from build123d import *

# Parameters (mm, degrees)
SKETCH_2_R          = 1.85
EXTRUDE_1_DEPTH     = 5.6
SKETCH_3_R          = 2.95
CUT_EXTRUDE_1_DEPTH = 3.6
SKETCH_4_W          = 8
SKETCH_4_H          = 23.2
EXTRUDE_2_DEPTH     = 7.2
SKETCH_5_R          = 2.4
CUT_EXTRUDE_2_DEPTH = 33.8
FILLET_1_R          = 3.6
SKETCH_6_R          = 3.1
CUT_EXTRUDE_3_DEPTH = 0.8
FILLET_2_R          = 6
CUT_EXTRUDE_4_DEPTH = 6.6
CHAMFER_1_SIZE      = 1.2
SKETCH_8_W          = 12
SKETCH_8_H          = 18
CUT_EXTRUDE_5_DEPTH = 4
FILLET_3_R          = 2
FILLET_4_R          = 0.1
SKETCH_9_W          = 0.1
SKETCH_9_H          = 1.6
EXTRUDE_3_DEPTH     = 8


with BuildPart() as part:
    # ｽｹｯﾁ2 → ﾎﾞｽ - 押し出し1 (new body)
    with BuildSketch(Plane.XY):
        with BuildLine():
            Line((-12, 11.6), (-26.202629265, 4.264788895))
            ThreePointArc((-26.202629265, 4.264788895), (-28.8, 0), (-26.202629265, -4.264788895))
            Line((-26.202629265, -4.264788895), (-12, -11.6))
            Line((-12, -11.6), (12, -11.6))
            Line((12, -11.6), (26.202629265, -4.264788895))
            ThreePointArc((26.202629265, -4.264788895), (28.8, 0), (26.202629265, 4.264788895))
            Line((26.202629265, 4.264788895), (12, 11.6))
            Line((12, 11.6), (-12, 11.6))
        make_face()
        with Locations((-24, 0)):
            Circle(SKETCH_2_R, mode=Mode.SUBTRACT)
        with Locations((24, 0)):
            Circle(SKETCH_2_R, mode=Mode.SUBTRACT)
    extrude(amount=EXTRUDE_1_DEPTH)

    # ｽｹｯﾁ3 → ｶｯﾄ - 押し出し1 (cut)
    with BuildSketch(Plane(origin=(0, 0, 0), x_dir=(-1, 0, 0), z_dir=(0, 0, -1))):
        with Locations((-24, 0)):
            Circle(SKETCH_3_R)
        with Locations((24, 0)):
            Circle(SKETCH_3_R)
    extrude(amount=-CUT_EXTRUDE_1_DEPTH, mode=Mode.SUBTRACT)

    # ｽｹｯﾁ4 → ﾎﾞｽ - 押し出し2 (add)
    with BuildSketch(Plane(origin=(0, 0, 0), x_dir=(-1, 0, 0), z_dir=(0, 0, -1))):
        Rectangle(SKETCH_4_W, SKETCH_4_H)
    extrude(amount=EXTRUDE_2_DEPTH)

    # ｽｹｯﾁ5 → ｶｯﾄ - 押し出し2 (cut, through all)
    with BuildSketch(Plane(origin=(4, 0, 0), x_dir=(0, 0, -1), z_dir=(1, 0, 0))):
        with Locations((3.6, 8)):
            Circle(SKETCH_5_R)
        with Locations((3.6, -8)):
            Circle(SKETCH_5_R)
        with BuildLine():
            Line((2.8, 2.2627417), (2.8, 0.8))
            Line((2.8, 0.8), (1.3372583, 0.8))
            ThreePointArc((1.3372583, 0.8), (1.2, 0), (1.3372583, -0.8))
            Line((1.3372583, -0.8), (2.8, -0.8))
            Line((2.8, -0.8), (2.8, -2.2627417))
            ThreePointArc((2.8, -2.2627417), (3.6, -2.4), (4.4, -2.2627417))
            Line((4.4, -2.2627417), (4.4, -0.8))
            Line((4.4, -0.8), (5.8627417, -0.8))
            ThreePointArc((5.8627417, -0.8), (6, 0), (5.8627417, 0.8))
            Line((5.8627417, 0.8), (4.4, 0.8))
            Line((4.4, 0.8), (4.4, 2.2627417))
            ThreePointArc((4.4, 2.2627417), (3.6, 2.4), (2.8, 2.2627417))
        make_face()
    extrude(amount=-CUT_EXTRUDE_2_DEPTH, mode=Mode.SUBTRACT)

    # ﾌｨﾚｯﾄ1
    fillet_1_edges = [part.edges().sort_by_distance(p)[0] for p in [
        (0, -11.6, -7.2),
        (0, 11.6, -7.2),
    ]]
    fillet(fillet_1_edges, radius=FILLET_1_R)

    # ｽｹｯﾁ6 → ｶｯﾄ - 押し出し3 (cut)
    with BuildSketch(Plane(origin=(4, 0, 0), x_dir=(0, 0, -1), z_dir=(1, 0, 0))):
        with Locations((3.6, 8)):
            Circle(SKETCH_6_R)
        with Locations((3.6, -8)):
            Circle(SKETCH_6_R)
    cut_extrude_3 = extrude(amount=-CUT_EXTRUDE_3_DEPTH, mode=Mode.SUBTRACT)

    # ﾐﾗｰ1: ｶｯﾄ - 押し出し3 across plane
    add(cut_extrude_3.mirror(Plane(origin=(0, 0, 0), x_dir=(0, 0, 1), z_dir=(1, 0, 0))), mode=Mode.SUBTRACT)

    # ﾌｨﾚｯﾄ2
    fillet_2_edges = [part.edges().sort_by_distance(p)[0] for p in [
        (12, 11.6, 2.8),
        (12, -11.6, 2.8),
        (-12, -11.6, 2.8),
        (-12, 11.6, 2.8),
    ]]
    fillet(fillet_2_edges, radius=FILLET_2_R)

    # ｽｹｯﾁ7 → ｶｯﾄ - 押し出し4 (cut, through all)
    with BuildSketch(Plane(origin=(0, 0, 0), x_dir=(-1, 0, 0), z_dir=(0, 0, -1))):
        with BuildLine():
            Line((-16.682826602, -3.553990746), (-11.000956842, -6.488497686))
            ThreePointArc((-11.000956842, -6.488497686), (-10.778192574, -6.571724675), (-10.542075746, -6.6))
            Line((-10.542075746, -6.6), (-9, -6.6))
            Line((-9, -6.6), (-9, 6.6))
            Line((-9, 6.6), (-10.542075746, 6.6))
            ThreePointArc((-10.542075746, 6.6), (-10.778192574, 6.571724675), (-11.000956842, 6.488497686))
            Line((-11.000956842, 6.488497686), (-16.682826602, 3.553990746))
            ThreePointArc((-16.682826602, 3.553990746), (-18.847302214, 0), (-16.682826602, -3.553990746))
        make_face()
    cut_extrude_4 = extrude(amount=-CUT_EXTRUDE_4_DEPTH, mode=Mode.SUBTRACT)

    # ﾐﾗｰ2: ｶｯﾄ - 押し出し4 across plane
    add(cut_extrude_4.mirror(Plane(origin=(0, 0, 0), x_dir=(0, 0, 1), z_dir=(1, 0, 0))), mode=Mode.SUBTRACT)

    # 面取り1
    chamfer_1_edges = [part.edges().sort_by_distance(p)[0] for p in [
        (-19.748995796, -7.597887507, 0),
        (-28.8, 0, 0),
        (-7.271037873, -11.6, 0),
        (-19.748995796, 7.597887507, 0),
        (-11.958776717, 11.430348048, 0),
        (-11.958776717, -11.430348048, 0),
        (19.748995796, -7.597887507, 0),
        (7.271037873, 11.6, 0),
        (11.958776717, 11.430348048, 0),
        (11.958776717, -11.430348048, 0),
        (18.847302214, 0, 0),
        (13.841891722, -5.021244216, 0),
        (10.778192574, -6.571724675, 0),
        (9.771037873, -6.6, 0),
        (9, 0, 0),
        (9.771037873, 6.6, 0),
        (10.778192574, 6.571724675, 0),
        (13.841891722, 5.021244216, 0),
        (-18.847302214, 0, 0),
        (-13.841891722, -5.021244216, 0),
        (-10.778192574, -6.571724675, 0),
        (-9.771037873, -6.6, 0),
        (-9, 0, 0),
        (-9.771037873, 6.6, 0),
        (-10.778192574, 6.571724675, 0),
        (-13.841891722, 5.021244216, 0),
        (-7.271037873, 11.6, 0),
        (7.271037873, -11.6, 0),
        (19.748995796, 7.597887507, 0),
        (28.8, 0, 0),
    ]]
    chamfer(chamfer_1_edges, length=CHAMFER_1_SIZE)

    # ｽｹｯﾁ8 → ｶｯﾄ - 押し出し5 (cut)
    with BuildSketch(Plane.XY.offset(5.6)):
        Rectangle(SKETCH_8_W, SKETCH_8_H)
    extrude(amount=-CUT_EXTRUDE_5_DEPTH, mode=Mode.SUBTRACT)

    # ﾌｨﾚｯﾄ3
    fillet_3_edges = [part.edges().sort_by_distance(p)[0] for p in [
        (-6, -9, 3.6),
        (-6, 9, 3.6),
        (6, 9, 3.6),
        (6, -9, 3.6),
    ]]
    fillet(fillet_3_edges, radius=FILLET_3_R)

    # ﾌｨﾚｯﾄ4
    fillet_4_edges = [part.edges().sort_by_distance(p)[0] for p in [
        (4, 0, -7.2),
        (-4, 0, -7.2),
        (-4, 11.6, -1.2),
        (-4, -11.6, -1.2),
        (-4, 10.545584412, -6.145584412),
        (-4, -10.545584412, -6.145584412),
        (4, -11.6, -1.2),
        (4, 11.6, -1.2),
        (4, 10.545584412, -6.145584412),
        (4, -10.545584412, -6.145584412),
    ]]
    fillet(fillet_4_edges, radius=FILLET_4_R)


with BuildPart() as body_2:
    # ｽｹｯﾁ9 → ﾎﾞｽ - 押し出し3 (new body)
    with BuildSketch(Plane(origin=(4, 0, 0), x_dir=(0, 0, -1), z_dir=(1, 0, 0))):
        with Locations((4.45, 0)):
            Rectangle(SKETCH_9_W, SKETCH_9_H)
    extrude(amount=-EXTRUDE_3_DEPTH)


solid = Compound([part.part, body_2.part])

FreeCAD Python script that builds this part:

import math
import FreeCAD as App
import Part
import Sketcher
Q = App.Units.Quantity


def edges_at(feature, points):
    """Names of the edges that pass closest to the given points."""
    edges = feature.Shape.Edges
    near = lambda p: min(range(len(edges)), key=lambda i: edges[i].distToShape(Part.Vertex(*p))[0])
    return sorted({f"Edge{near(p) + 1}" for p in points})

doc = App.newDocument("Part")
body = doc.addObject("PartDesign::Body", "Body")

sketch1 = body.newObject("Sketcher::SketchObject", "Sketch")
sketch1.AttachmentSupport = (doc.getObject("XY_Plane"), [""])
sketch1.MapMode = "FlatFace"
sketch1.addGeometry([
    Part.LineSegment(App.Vector(-12, 11.6, 0), App.Vector(-26.2, 4.3, 0)),
    Part.ArcOfCircle(Part.Circle(App.Vector(-24, 0, 0), App.Vector(0, 0, 1), 4.8), math.radians(117), math.radians(243)),
    Part.LineSegment(App.Vector(-26.2, -4.3, 0), App.Vector(-12, -11.6, 0)),
    Part.LineSegment(App.Vector(-12, -11.6, 0), App.Vector(12, -11.6, 0)),
    Part.LineSegment(App.Vector(12, -11.6, 0), App.Vector(26.2, -4.3, 0)),
    Part.ArcOfCircle(Part.Circle(App.Vector(24, 0, 0), App.Vector(0, 0, 1), 4.8), math.radians(-63), math.radians(63)),
    Part.LineSegment(App.Vector(26.2, 4.3, 0), App.Vector(12, 11.6, 0)),
    Part.LineSegment(App.Vector(12, 11.6, 0), App.Vector(-12, 11.6, 0)),
    Part.Circle(App.Vector(-24, 0, 0), App.Vector(0, 0, 1), 1.9),
    Part.Circle(App.Vector(24, 0, 0), App.Vector(0, 0, 1), 1.9),
], False)
sketch1.addConstraint([
    Sketcher.Constraint("Tangent", 0, 2, 1, 1),
    Sketcher.Constraint("Tangent", 1, 2, 2, 1),
    Sketcher.Constraint("Coincident", 2, 2, 3, 1),
    Sketcher.Constraint("Coincident", 3, 2, 4, 1),
    Sketcher.Constraint("Tangent", 4, 2, 5, 1),
    Sketcher.Constraint("Tangent", 5, 2, 6, 1),
    Sketcher.Constraint("Coincident", 6, 2, 7, 1),
    Sketcher.Constraint("Coincident", 7, 2, 0, 1),
    Sketcher.Constraint("Horizontal", 3),
    Sketcher.Constraint("Horizontal", 7),
    Sketcher.Constraint("Coincident", 8, 3, 1, 3),
    Sketcher.Constraint("Coincident", 9, 3, 5, 3),
    Sketcher.Constraint("Equal", 1, 5),
    Sketcher.Constraint("Equal", 8, 9),
    Sketcher.Constraint("Symmetric", 1, 3, 5, 3, -1, 1),
    Sketcher.Constraint("Symmetric", 2, 2, 6, 2, -1, 1),
    Sketcher.Constraint("Symmetric", 1, 2, 4, 2, -2),
    Sketcher.Constraint("Parallel", 0, 4),
    Sketcher.Constraint("Diameter", 8, Q("3.7 mm")),
    Sketcher.Constraint("Radius", 1, Q("4.8 mm")),
    Sketcher.Constraint("DistanceX", 3, 1, 3, 2, Q("24 mm")),
    Sketcher.Constraint("DistanceX", 1, 3, -1, 1, Q("24 mm")),
    Sketcher.Constraint("DistanceY", 2, 2, -1, 1, Q("11.6 mm")),
])
pad1 = body.newObject("PartDesign::Pad", "Pad")
pad1.Profile = sketch1
pad1.Length = 5.6

sketch2 = body.newObject("Sketcher::SketchObject", "Sketch001")
sketch2.AttachmentSupport = (doc.getObject("XY_Plane"), [""])
sketch2.MapMode = "FlatFace"
sketch2.addGeometry([
    Part.Circle(App.Vector(24, 0, 0), App.Vector(0, 0, 1), 3),
    Part.Circle(App.Vector(-24, 0, 0), App.Vector(0, 0, 1), 3),
], False)
sketch2.addConstraint([
    Sketcher.Constraint("Equal", 0, 1),
    Sketcher.Constraint("Symmetric", 0, 3, 1, 3, -1, 1),
    Sketcher.Constraint("PointOnObject", 0, 3, -1),
    Sketcher.Constraint("Diameter", 0, Q("5.9 mm")),
    Sketcher.Constraint("DistanceX", -1, 1, 0, 3, Q("24 mm")),
])
pocket1 = body.newObject("PartDesign::Pocket", "Pocket")
pocket1.Profile = sketch2
pocket1.Length = 3.6
pocket1.Reversed = True

sketch3 = body.newObject("Sketcher::SketchObject", "Sketch002")
sketch3.AttachmentSupport = (doc.getObject("XY_Plane"), [""])
sketch3.MapMode = "FlatFace"
sketch3.addGeometry([
    Part.LineSegment(App.Vector(4, 12, 0), App.Vector(4, -12, 0)),
    Part.LineSegment(App.Vector(4, -12, 0), App.Vector(-4, -12, 0)),
    Part.LineSegment(App.Vector(-4, -12, 0), App.Vector(-4, 12, 0)),
    Part.LineSegment(App.Vector(-4, 12, 0), App.Vector(4, 12, 0)),
], False)
sketch3.addConstraint([
    Sketcher.Constraint("Coincident", 0, 2, 1, 1),
    Sketcher.Constraint("Coincident", 1, 2, 2, 1),
    Sketcher.Constraint("Coincident", 2, 2, 3, 1),
    Sketcher.Constraint("Coincident", 3, 2, 0, 1),
    Sketcher.Constraint("Vertical", 0),
    Sketcher.Constraint("Horizontal", 1),
    Sketcher.Constraint("Vertical", 2),
    Sketcher.Constraint("Horizontal", 3),
    Sketcher.Constraint("Symmetric", 0, 2, 2, 2, -1, 1),
    Sketcher.Constraint("DistanceX", 1, 2, 1, 1, Q("8 mm")),
    Sketcher.Constraint("DistanceY", 0, 2, 0, 1, Q("23.2 mm")),
])
pad2 = body.newObject("PartDesign::Pad", "Pad001")
pad2.Profile = sketch3
pad2.Length = 7.2
pad2.Reversed = True

sketch4 = body.newObject("Sketcher::SketchObject", "Sketch003")
sketch4.AttachmentSupport = (doc.getObject("YZ_Plane"), [""])
sketch4.MapMode = "FlatFace"
sketch4.AttachmentOffset = App.Placement(App.Vector(0, 0, 4), App.Rotation())
sketch4.addGeometry([
    Part.Circle(App.Vector(8, -3.6, 0), App.Vector(0, 0, 1), 2.4),
    Part.Circle(App.Vector(-8, -3.6, 0), App.Vector(0, 0, 1), 2.4),
    Part.LineSegment(App.Vector(2.3, -2.8, 0), App.Vector(0.8, -2.8, 0)),
    Part.LineSegment(App.Vector(0.8, -2.8, 0), App.Vector(0.8, -1.3, 0)),
    Part.ArcOfCircle(Part.Circle(App.Vector(0, -3.6, 0), App.Vector(0, 0, 1), 2.4), math.radians(71), math.radians(109)),
    Part.LineSegment(App.Vector(-0.8, -1.3, 0), App.Vector(-0.8, -2.8, 0)),
    Part.LineSegment(App.Vector(-0.8, -2.8, 0), App.Vector(-2.3, -2.8, 0)),
    Part.ArcOfCircle(Part.Circle(App.Vector(0, -3.6, 0), App.Vector(0, 0, 1), 2.4), math.radians(161), math.radians(199)),
    Part.LineSegment(App.Vector(-2.3, -4.4, 0), App.Vector(-0.8, -4.4, 0)),
    Part.LineSegment(App.Vector(-0.8, -4.4, 0), App.Vector(-0.8, -5.9, 0)),
    Part.ArcOfCircle(Part.Circle(App.Vector(0, -3.6, 0), App.Vector(0, 0, 1), 2.4), math.radians(-109), math.radians(-71)),
    Part.LineSegment(App.Vector(0.8, -5.9, 0), App.Vector(0.8, -4.4, 0)),
    Part.LineSegment(App.Vector(0.8, -4.4, 0), App.Vector(2.3, -4.4, 0)),
    Part.ArcOfCircle(Part.Circle(App.Vector(0, -3.6, 0), App.Vector(0, 0, 1), 2.4), math.radians(-19), math.radians(19)),
], False)
sketch4.addConstraint([
    Sketcher.Constraint("Coincident", 2, 2, 3, 1),
    Sketcher.Constraint("Coincident", 3, 2, 4, 1),
    Sketcher.Constraint("Coincident", 4, 2, 5, 1),
    Sketcher.Constraint("Coincident", 5, 2, 6, 1),
    Sketcher.Constraint("Coincident", 6, 2, 7, 1),
    Sketcher.Constraint("Coincident", 7, 2, 8, 1),
    Sketcher.Constraint("Coincident", 8, 2, 9, 1),
    Sketcher.Constraint("Coincident", 9, 2, 10, 1),
    Sketcher.Constraint("Coincident", 10, 2, 11, 1),
    Sketcher.Constraint("Coincident", 11, 2, 12, 1),
    Sketcher.Constraint("Coincident", 12, 2, 13, 1),
    Sketcher.Constraint("Coincident", 13, 2, 2, 1),
    Sketcher.Constraint("Horizontal", 2),
    Sketcher.Constraint("Vertical", 3),
    Sketcher.Constraint("Vertical", 5),
    Sketcher.Constraint("Horizontal", 6),
    Sketcher.Constraint("Horizontal", 8),
    Sketcher.Constraint("Vertical", 9),
    Sketcher.Constraint("Vertical", 11),
    Sketcher.Constraint("Horizontal", 12),
    Sketcher.Constraint("Coincident", 7, 3, 4, 3),
    Sketcher.Constraint("Coincident", 10, 3, 4, 3),
    Sketcher.Constraint("Coincident", 13, 3, 4, 3),
    Sketcher.Constraint("Equal", 0, 1),
    Sketcher.Constraint("Equal", 1, 4),
    Sketcher.Constraint("Equal", 4, 7),
    Sketcher.Constraint("Equal", 7, 10),
    Sketcher.Constraint("Equal", 10, 13),
    Sketcher.Constraint("Symmetric", 0, 3, 1, 3, -2),
    Sketcher.Constraint("Symmetric", 3, 2, 4, 2, -2),
    Sketcher.Constraint("Symmetric", 8, 2, 11, 2, -2),
    Sketcher.Constraint("Horizontal", 1, 3, 4, 3),
    Sketcher.Constraint("Horizontal", 2, 2, 5, 2),
    Sketcher.Constraint("Vertical", 6, 2, 7, 2),
    Sketcher.Constraint("Vertical", 5, 2, 8, 2),
    Sketcher.Constraint("Equal", 12, 3),
    Sketcher.Constraint("Diameter", 0, Q("4.8 mm")),
    Sketcher.Constraint("DistanceX", -1, 1, 0, 3, Q("8 mm")),
    Sketcher.Constraint("DistanceY", 0, 3, -1, 1, Q("3.6 mm")),
    Sketcher.Constraint("DistanceX", -1, 1, 2, 2, Q("0.8 mm")),
])
pocket2 = body.newObject("PartDesign::Pocket", "Pocket001")
pocket2.Profile = sketch4
pocket2.Type = "ThroughAll"
doc.recompute()

fillet = body.newObject("PartDesign::Fillet", "Fillet")
fillet.Base = (pocket2, edges_at(pocket2, [(0, -11.6, -7.2), (0, 11.6, -7.2)]))
fillet.Radius = 3.6

sketch5 = body.newObject("Sketcher::SketchObject", "Sketch004")
sketch5.AttachmentSupport = (doc.getObject("YZ_Plane"), [""])
sketch5.MapMode = "FlatFace"
sketch5.AttachmentOffset = App.Placement(App.Vector(0, 0, 4), App.Rotation())
sketch5.addGeometry([
    Part.Circle(App.Vector(8, -3.6, 0), App.Vector(0, 0, 1), 3.1),
    Part.Circle(App.Vector(-8, -3.6, 0), App.Vector(0, 0, 1), 3.1),
], False)
sketch5.addConstraint([
    Sketcher.Constraint("Equal", 0, 1),
    Sketcher.Constraint("Symmetric", 0, 3, 1, 3, -2),
    Sketcher.Constraint("Diameter", 0, Q("6.2 mm")),
    Sketcher.Constraint("DistanceX", -1, 1, 0, 3, Q("8 mm")),
    Sketcher.Constraint("DistanceY", 0, 3, -1, 1, Q("3.6 mm")),
])
pocket3 = body.newObject("PartDesign::Pocket", "Pocket002")
pocket3.Profile = sketch5
pocket3.Length = 0.8
doc.recompute()

mirrored = body.newObject("PartDesign::Mirrored", "Mirrored")
mirrored.Originals = [pocket3]
mirrored.MirrorPlane = (doc.getObject("YZ_Plane"), [""])
body.Tip = mirrored
doc.recompute()

fillet2 = body.newObject("PartDesign::Fillet", "Fillet001")
fillet2.Base = (mirrored, edges_at(mirrored, [
    (12, 11.6, 2.8),
    (12, -11.6, 2.8),
    (-12, -11.6, 2.8),
    (-12, 11.6, 2.8),
]))
fillet2.Radius = 6

sketch6 = body.newObject("Sketcher::SketchObject", "Sketch005")
sketch6.AttachmentSupport = (doc.getObject("XY_Plane"), [""])
sketch6.MapMode = "FlatFace"
sketch6.addGeometry([
    Part.LineSegment(App.Vector(16.68, -3.55, 0), App.Vector(11, -6.49, 0)),
    Part.ArcOfCircle(Part.Circle(App.Vector(10.54, -5.6, 0), App.Vector(0, 0, 1), 1), math.radians(-90), math.radians(-63)),
    Part.LineSegment(App.Vector(10.54, -6.6, 0), App.Vector(9, -6.6, 0)),
    Part.LineSegment(App.Vector(9, -6.6, 0), App.Vector(9, 6.6, 0)),
    Part.LineSegment(App.Vector(9, 6.6, 0), App.Vector(10.54, 6.6, 0)),
    Part.ArcOfCircle(Part.Circle(App.Vector(10.54, 5.6, 0), App.Vector(0, 0, 1), 1), math.radians(63), math.radians(90)),
    Part.LineSegment(App.Vector(11, 6.49, 0), App.Vector(16.68, 3.55, 0)),
    Part.ArcOfCircle(Part.Circle(App.Vector(14.85, 0, 0), App.Vector(0, 0, 1), 4), math.radians(-63), math.radians(63)),
], False)
sketch6.addConstraint([
    Sketcher.Constraint("Tangent", 0, 2, 1, 2),
    Sketcher.Constraint("Tangent", 1, 1, 2, 1),
    Sketcher.Constraint("Coincident", 2, 2, 3, 1),
    Sketcher.Constraint("Coincident", 3, 2, 4, 1),
    Sketcher.Constraint("Tangent", 4, 2, 5, 2),
    Sketcher.Constraint("Tangent", 5, 1, 6, 1),
    Sketcher.Constraint("Tangent", 6, 2, 7, 2),
    Sketcher.Constraint("Tangent", 7, 1, 0, 1),
    Sketcher.Constraint("Horizontal", 2),
    Sketcher.Constraint("Vertical", 3),
    Sketcher.Constraint("Horizontal", 4),
    Sketcher.Constraint("Equal", 1, 5),
    Sketcher.Constraint("Symmetric", 1, 3, 5, 3, -1),
    Sketcher.Constraint("PointOnObject", 7, 3, -1),
    Sketcher.Constraint("Radius", 1, Q("1 mm")),
    Sketcher.Constraint("Radius", 7, Q("4 mm")),
    Sketcher.Constraint("DistanceY", 3, 1, 3, 2, Q("13.2 mm")),
    Sketcher.Constraint("DistanceX", -1, 1, 2, 2, Q("9 mm")),
    Sketcher.Constraint("DistanceX", 2, 2, 2, 1, Q("1.542076 mm")),
    Sketcher.Constraint("DistanceY", -1, 1, 6, 2, Q("3.553991 mm")),
])
pocket4 = body.newObject("PartDesign::Pocket", "Pocket003")
pocket4.Profile = sketch6
pocket4.Type = "ThroughAll"
pocket4.Reversed = True
doc.recompute()

mirrored2 = body.newObject("PartDesign::Mirrored", "Mirrored001")
mirrored2.Originals = [pocket4]
mirrored2.MirrorPlane = (doc.getObject("YZ_Plane"), [""])
body.Tip = mirrored2
doc.recompute()

chamfer = body.newObject("PartDesign::Chamfer", "Chamfer")
chamfer.Base = (mirrored2, edges_at(mirrored2, [
    (-19.749, -7.598, 0),
    (-28.8, 0, 0),
    (-7.271, -11.6, 0),
    (-19.749, 7.598, 0),
    (-11.959, 11.43, 0),
    (-11.959, -11.43, 0),
    (19.749, -7.598, 0),
    (7.271, 11.6, 0),
    (11.959, 11.43, 0),
    (11.959, -11.43, 0),
    (18.847, 0, 0),
    (13.842, -5.021, 0),
    (10.778, -6.572, 0),
    (9.771, -6.6, 0),
    (9, 0, 0),
    (9.771, 6.6, 0),
    (10.778, 6.572, 0),
    (13.842, 5.021, 0),
    (-18.847, 0, 0),
    (-13.842, -5.021, 0),
    (-10.778, -6.572, 0),
    (-9.771, -6.6, 0),
    (-9, 0, 0),
    (-9.771, 6.6, 0),
    (-10.778, 6.572, 0),
    (-13.842, 5.021, 0),
    (-7.271, 11.6, 0),
    (7.271, -11.6, 0),
    (19.749, 7.598, 0),
    (28.8, 0, 0),
]))
chamfer.Size = 1.2

sketch7 = body.newObject("Sketcher::SketchObject", "Sketch006")
sketch7.AttachmentSupport = (doc.getObject("XY_Plane"), [""])
sketch7.MapMode = "FlatFace"
sketch7.AttachmentOffset = App.Placement(App.Vector(0, 0, 5.6), App.Rotation())
sketch7.addGeometry([
    Part.LineSegment(App.Vector(-6, 9, 0), App.Vector(-6, -9, 0)),
    Part.LineSegment(App.Vector(-6, -9, 0), App.Vector(6, -9, 0)),
    Part.LineSegment(App.Vector(6, -9, 0), App.Vector(6, 9, 0)),
    Part.LineSegment(App.Vector(6, 9, 0), App.Vector(-6, 9, 0)),
], False)
sketch7.addConstraint([
    Sketcher.Constraint("Coincident", 0, 2, 1, 1),
    Sketcher.Constraint("Coincident", 1, 2, 2, 1),
    Sketcher.Constraint("Coincident", 2, 2, 3, 1),
    Sketcher.Constraint("Coincident", 3, 2, 0, 1),
    Sketcher.Constraint("Vertical", 0),
    Sketcher.Constraint("Horizontal", 1),
    Sketcher.Constraint("Vertical", 2),
    Sketcher.Constraint("Horizontal", 3),
    Sketcher.Constraint("Symmetric", 0, 2, 2, 2, -1, 1),
    Sketcher.Constraint("DistanceX", 1, 1, 1, 2, Q("12 mm")),
    Sketcher.Constraint("DistanceY", 0, 2, 0, 1, Q("18 mm")),
])
pocket5 = body.newObject("PartDesign::Pocket", "Pocket004")
pocket5.Profile = sketch7
pocket5.Length = 4
doc.recompute()

fillet3 = body.newObject("PartDesign::Fillet", "Fillet002")
fillet3.Base = (pocket5, edges_at(pocket5, [
    (-6, -9, 3.6),
    (-6, 9, 3.6),
    (6, 9, 3.6),
    (6, -9, 3.6),
]))
fillet3.Radius = 2
doc.recompute()

fillet4 = body.newObject("PartDesign::Fillet", "Fillet003")
fillet4.Base = (fillet3, edges_at(fillet3, [
    (4, 0, -7.2),
    (-4, 0, -7.2),
    (-4, 11.6, -1.2),
    (-4, -11.6, -1.2),
    (-4, 10.546, -6.146),
    (-4, -10.546, -6.146),
    (4, -11.6, -1.2),
    (4, 11.6, -1.2),
    (4, 10.546, -6.146),
    (4, -10.546, -6.146),
]))
fillet4.Radius = 0.1
body2 = doc.addObject("PartDesign::Body", "Body001")

sketch8 = body2.newObject("Sketcher::SketchObject", "Sketch007")
sketch8.AttachmentSupport = (doc.getObject("YZ_Plane001"), [""])
sketch8.MapMode = "FlatFace"
sketch8.AttachmentOffset = App.Placement(App.Vector(0, 0, 4), App.Rotation())
sketch8.addGeometry([
    Part.LineSegment(App.Vector(0.8, -4.4, 0), App.Vector(-0.8, -4.4, 0)),
    Part.LineSegment(App.Vector(-0.8, -4.4, 0), App.Vector(-0.8, -4.5, 0)),
    Part.LineSegment(App.Vector(-0.8, -4.5, 0), App.Vector(0.8, -4.5, 0)),
    Part.LineSegment(App.Vector(0.8, -4.5, 0), App.Vector(0.8, -4.4, 0)),
], False)
sketch8.addConstraint([
    Sketcher.Constraint("Coincident", 0, 2, 1, 1),
    Sketcher.Constraint("Coincident", 1, 2, 2, 1),
    Sketcher.Constraint("Coincident", 2, 2, 3, 1),
    Sketcher.Constraint("Coincident", 3, 2, 0, 1),
    Sketcher.Constraint("Horizontal", 0),
    Sketcher.Constraint("Vertical", 1),
    Sketcher.Constraint("Horizontal", 2),
    Sketcher.Constraint("Vertical", 3),
    Sketcher.Constraint("DistanceX", 0, 2, 0, 1, Q("1.6 mm")),
    Sketcher.Constraint("DistanceY", 1, 2, 1, 1, Q("0.1 mm")),
    Sketcher.Constraint("DistanceX", 0, 2, -1, 1, Q("0.8 mm")),
    Sketcher.Constraint("DistanceY", 0, 2, -1, 1, Q("4.4 mm")),
])
pad3 = body2.newObject("PartDesign::Pad", "Pad002")
pad3.Profile = sketch8
pad3.Length = 8
pad3.Reversed = True

doc.recompute()
